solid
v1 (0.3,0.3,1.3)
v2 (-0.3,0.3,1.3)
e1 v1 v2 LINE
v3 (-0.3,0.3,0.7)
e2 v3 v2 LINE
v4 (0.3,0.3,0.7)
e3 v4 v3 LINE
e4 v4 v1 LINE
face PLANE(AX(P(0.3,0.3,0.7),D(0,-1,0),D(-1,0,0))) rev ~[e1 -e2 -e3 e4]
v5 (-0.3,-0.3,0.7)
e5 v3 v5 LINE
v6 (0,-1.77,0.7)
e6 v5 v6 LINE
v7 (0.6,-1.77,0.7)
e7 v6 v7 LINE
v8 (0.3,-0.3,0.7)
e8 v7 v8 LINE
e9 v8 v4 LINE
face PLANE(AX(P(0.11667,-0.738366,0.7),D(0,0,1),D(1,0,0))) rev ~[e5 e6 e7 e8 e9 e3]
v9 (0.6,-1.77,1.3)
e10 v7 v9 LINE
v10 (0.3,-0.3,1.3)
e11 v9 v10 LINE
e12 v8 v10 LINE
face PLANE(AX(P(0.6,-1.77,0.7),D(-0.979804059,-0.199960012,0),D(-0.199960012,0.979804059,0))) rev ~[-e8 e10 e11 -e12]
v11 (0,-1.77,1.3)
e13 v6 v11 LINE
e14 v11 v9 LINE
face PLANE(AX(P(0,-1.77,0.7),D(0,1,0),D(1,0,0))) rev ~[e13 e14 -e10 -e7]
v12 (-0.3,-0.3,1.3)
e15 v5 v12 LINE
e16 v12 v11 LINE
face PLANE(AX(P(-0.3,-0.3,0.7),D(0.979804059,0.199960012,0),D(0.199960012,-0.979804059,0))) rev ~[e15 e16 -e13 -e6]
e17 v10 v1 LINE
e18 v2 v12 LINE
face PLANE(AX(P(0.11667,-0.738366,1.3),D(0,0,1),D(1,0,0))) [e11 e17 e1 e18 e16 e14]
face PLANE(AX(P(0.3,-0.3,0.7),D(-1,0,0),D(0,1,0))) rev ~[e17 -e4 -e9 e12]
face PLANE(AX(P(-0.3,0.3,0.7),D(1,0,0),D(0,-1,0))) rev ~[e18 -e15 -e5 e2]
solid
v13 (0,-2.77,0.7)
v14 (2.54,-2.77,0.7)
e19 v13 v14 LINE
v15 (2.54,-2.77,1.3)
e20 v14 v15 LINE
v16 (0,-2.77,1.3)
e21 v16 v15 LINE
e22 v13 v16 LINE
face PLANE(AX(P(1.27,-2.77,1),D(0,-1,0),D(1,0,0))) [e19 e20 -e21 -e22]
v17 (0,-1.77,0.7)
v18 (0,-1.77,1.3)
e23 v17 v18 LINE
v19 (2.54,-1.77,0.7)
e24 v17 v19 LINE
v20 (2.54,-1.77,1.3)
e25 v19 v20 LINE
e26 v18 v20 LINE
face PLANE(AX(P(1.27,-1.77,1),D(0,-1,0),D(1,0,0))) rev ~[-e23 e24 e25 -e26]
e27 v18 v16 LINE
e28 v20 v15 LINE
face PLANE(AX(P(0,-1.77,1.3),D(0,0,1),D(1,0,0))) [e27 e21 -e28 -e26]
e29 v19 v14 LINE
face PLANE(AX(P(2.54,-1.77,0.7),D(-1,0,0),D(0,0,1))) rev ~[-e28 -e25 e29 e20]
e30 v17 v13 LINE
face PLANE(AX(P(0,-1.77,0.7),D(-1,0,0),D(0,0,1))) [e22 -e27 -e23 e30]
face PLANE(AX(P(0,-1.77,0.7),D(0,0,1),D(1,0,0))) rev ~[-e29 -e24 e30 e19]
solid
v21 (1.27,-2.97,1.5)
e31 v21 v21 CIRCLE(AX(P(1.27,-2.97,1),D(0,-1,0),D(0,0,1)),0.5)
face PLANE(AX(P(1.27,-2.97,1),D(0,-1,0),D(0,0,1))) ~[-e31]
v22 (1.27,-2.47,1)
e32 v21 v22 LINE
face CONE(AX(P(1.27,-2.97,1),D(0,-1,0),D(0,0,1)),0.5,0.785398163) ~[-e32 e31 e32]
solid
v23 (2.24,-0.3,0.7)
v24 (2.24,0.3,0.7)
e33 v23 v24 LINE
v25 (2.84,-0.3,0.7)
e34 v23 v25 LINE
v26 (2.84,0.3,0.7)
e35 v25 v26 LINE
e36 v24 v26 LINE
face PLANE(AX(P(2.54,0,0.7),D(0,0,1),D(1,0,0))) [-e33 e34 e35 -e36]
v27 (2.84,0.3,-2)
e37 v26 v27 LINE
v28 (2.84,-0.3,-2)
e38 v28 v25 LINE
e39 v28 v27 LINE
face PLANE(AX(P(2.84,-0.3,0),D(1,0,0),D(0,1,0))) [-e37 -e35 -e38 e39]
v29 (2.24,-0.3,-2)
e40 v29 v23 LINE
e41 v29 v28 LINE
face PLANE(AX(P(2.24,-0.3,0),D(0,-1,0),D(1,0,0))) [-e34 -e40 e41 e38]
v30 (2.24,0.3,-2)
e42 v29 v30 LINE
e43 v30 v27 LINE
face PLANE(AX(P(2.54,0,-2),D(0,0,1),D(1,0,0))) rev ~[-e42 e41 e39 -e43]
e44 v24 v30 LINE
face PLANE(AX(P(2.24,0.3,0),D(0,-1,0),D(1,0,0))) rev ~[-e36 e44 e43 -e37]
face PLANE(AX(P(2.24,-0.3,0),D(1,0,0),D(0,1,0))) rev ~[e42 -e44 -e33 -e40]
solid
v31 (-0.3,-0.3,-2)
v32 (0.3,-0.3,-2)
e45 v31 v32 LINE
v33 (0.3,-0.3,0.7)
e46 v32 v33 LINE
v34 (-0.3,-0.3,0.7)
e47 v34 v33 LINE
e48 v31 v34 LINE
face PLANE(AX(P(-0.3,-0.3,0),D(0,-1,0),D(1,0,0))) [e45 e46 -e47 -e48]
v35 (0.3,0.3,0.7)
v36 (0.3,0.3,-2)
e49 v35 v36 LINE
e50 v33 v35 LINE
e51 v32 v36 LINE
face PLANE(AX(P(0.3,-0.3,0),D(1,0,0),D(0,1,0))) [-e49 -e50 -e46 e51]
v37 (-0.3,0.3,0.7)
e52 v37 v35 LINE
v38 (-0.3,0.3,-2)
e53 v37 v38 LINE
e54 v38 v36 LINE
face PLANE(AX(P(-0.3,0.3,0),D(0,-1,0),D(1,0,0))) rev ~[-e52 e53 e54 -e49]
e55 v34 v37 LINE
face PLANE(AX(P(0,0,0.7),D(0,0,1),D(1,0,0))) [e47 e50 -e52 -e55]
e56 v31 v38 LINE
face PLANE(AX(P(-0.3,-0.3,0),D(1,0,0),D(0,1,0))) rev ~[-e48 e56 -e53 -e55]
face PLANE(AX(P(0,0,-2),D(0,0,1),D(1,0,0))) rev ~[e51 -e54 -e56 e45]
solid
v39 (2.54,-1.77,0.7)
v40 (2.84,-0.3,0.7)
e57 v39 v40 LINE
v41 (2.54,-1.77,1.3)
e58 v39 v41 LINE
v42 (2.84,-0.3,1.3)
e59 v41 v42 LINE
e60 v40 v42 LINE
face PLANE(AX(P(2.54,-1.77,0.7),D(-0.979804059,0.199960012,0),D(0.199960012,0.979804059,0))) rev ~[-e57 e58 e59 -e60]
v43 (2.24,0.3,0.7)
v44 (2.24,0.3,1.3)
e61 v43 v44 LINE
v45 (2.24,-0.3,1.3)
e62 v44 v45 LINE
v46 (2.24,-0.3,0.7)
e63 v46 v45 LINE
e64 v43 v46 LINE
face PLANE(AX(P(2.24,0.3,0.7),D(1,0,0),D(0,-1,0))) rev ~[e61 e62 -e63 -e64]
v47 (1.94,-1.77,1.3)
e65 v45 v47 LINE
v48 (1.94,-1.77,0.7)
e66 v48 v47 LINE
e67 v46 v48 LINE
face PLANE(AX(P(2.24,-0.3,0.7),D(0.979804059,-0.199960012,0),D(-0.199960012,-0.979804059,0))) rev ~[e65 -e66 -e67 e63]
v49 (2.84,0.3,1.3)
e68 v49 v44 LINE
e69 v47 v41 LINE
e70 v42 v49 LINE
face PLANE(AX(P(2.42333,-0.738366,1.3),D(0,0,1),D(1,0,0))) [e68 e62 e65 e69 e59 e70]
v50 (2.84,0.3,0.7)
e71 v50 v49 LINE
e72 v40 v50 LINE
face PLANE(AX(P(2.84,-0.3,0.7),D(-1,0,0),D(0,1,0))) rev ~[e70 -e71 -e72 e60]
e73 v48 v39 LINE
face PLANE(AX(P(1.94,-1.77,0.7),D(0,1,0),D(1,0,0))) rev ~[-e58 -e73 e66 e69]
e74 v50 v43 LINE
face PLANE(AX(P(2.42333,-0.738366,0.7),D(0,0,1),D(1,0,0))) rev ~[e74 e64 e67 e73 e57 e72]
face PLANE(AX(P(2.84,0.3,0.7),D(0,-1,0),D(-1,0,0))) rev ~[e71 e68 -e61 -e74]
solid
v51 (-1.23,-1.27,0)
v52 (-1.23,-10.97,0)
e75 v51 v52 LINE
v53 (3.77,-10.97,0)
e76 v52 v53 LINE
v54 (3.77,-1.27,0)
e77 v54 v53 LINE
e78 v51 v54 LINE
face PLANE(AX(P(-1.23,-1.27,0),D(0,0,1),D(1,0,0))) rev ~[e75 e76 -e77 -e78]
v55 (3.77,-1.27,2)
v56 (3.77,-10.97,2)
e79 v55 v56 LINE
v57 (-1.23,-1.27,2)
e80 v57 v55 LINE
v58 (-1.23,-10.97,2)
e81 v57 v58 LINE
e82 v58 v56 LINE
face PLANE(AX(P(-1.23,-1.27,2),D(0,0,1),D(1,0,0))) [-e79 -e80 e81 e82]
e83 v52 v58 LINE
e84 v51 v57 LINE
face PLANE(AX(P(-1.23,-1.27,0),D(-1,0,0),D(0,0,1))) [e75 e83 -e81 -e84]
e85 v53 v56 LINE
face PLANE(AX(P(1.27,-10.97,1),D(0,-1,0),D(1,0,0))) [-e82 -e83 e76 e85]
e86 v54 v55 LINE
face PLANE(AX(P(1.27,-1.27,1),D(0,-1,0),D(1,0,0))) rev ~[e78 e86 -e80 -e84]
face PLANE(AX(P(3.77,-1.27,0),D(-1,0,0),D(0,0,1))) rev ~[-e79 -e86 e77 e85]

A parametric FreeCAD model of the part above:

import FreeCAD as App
import Part
import Sketcher

V = App.Vector

doc = App.newDocument("Part")
body = doc.addObject("PartDesign::Body", "Body")
body.AllowCompound = True

# Sketch on XY plane
sketch1 = doc.addObject("Sketcher::SketchObject", "Sketch")
body.addObject(sketch1)
sketch1.AttachmentSupport = (doc.XY_Plane, [""])
sketch1.MapMode = "FlatFace"
sketch1.addGeometry([
    Part.LineSegment(V(-0.3, 0.3, 0), V(-0.3, -0.3, 0)),  # 0
    Part.LineSegment(V(-0.3, -0.3, 0), V(0.3, -0.3, 0)),  # 1
    Part.LineSegment(V(0.3, -0.3, 0), V(0.3, 0.3, 0)),  # 2
    Part.LineSegment(V(0.3, 0.3, 0), V(-0.3, 0.3, 0)),  # 3
    Part.LineSegment(V(2.2, 0.3, 0), V(2.2, -0.3, 0)),  # 4
    Part.LineSegment(V(2.2, -0.3, 0), V(2.8, -0.3, 0)),  # 5
    Part.LineSegment(V(2.8, -0.3, 0), V(2.8, 0.3, 0)),  # 6
    Part.LineSegment(V(2.8, 0.3, 0), V(2.2, 0.3, 0)),  # 7
], False)
sketch1.addConstraint([
    Sketcher.Constraint("Coincident", 0, 2, 1, 1),
    Sketcher.Constraint("Coincident", 1, 2, 2, 1),
    Sketcher.Constraint("Coincident", 2, 2, 3, 1),
    Sketcher.Constraint("Coincident", 3, 2, 0, 1),
    Sketcher.Constraint("Coincident", 4, 2, 5, 1),
    Sketcher.Constraint("Coincident", 5, 2, 6, 1),
    Sketcher.Constraint("Coincident", 6, 2, 7, 1),
    Sketcher.Constraint("Coincident", 7, 2, 4, 1),
    Sketcher.Constraint("Vertical", 0),
    Sketcher.Constraint("Horizontal", 1),
    Sketcher.Constraint("Vertical", 2),
    Sketcher.Constraint("Horizontal", 3),
    Sketcher.Constraint("Vertical", 4),
    Sketcher.Constraint("Horizontal", 5),
    Sketcher.Constraint("Vertical", 6),
    Sketcher.Constraint("Horizontal", 7),
    Sketcher.Constraint("Symmetric", 0, 2, 2, 2, -1, 1),
    Sketcher.Constraint("Horizontal", 1, 2, 4, 2),
    Sketcher.Constraint("Horizontal", 3, 2, 6, 2),
    Sketcher.Constraint("Equal", 3, 5),
    Sketcher.Constraint("Equal", 7, 0),
    Sketcher.Constraint("DistanceX", 1, 1, 1, 2, 0.6),
    Sketcher.Constraint("DistanceX", -1, 1, 4, 2, 2.24),
])
pad1 = doc.addObject("PartDesign::Pad", "Pad")
body.addObject(pad1)
pad1.Profile = sketch1
pad1.Type = "TwoLengths"
pad1.Length = 0.7
pad1.Length2 = 2
body2 = doc.addObject("PartDesign::Body", "Body001")
body2.AllowCompound = True

# Sketch on XY plane
sketch2 = doc.addObject("Sketcher::SketchObject", "Sketch001")
body2.addObject(sketch2)
sketch2.AttachmentSupport = (doc.getObject("XY_Plane001"), [""])
sketch2.MapMode = "FlatFace"
sketch2.AttachmentOffset = App.Placement(V(0, 0, 0.7), App.Rotation())
sketch2.addGeometry([
    Part.LineSegment(V(0.3, 0.3, 0), V(-0.3, 0.3, 0)),  # 0
    Part.LineSegment(V(-0.3, 0.3, 0), V(-0.3, -0.3, 0)),  # 1
    Part.LineSegment(V(-0.3, -0.3, 0), V(0, -1.8, 0)),  # 2
    Part.LineSegment(V(0, -1.8, 0), V(0.6, -1.8, 0)),  # 3
    Part.LineSegment(V(0.6, -1.8, 0), V(0.3, -0.3, 0)),  # 4
    Part.LineSegment(V(0.3, -0.3, 0), V(0.3, 0.3, 0)),  # 5
    Part.LineSegment(V(2.8, 0.3, 0), V(2.2, 0.3, 0)),  # 6
    Part.LineSegment(V(2.2, 0.3, 0), V(2.2, -0.3, 0)),  # 7
    Part.LineSegment(V(2.2, -0.3, 0), V(1.9, -1.8, 0)),  # 8
    Part.LineSegment(V(1.9, -1.8, 0), V(2.5, -1.8, 0)),  # 9
    Part.LineSegment(V(2.5, -1.8, 0), V(2.8, -0.3, 0)),  # 10
    Part.LineSegment(V(2.8, -0.3, 0), V(2.8, 0.3, 0)),  # 11
], False)
sketch2.addConstraint([
    Sketcher.Constraint("Coincident", 0, 2, 1, 1),
    Sketcher.Constraint("Coincident", 1, 2, 2, 1),
    Sketcher.Constraint("Coincident", 2, 2, 3, 1),
    Sketcher.Constraint("Coincident", 3, 2, 4, 1),
    Sketcher.Constraint("Coincident", 4, 2, 5, 1),
    Sketcher.Constraint("Coincident", 5, 2, 0, 1),
    Sketcher.Constraint("Coincident", 6, 2, 7, 1),
    Sketcher.Constraint("Coincident", 7, 2, 8, 1),
    Sketcher.Constraint("Coincident", 8, 2, 9, 1),
    Sketcher.Constraint("Coincident", 9, 2, 10, 1),
    Sketcher.Constraint("Coincident", 10, 2, 11, 1),
    Sketcher.Constraint("Coincident", 11, 2, 6, 1),
    Sketcher.Constraint("Horizontal", 0),
    Sketcher.Constraint("Vertical", 1),
    Sketcher.Constraint("Horizontal", 3),
    Sketcher.Constraint("Vertical", 5),
    Sketcher.Constraint("Horizontal", 6),
    Sketcher.Constraint("Vertical", 7),
    Sketcher.Constraint("Horizontal", 9),
    Sketcher.Constraint("Vertical", 11),
    Sketcher.Constraint("Symmetric", 0, 2, 4, 2, -1, 1),
    Sketcher.Constraint("PointOnObject", 2, 2, -2),
    Sketcher.Constraint("Parallel", 2, 4),
    Sketcher.Constraint("Parallel", 8, 10),
    Sketcher.Constraint("Horizontal", 1, 2, 4, 2),
    Sketcher.Constraint("Horizontal", 5, 2, 6, 2),
    Sketcher.Constraint("Horizontal", 4, 2, 7, 2),
    Sketcher.Constraint("Horizontal", 3, 2, 8, 2),
    Sketcher.Constraint("Horizontal", 7, 2, 10, 2),
    Sketcher.Constraint("Equal", 3, 6),
    Sketcher.Constraint("Equal", 9, 1),
    Sketcher.Constraint("Equal", 4, 8),
    Sketcher.Constraint("DistanceX", 0, 2, 0, 1, 0.6),
    Sketcher.Constraint("DistanceY", 2, 2, -1, 1, 1.77),
    Sketcher.Constraint("DistanceX", -1, 1, 6, 2, 2.24),
])
pad2 = doc.addObject("PartDesign::Pad", "Pad001")
body2.addObject(pad2)
pad2.Profile = sketch2
pad2.Length = 0.6
body3 = doc.addObject("PartDesign::Body", "Body002")

# Sketch on XZ plane
sketch3 = doc.addObject("Sketcher::SketchObject", "Sketch002")
body3.addObject(sketch3)
sketch3.AttachmentSupport = (doc.getObject("XZ_Plane002"), [""])
sketch3.MapMode = "FlatFace"
sketch3.AttachmentOffset = App.Placement(V(0, 0, 1.77), App.Rotation())
sketch3.addGeometry([
    Part.LineSegment(V(0, 1.3, 0), V(0, 0.7, 0)),
    Part.LineSegment(V(0, 0.7, 0), V(2.5, 0.7, 0)),
    Part.LineSegment(V(2.5, 0.7, 0), V(2.5, 1.3, 0)),
    Part.LineSegment(V(2.5, 1.3, 0), V(0, 1.3, 0)),
], False)
sketch3.addConstraint([
    Sketcher.Constraint("Coincident", 0, 2, 1, 1),
    Sketcher.Constraint("Coincident", 1, 2, 2, 1),
    Sketcher.Constraint("Coincident", 2, 2, 3, 1),
    Sketcher.Constraint("Coincident", 3, 2, 0, 1),
    Sketcher.Constraint("Vertical", 0),
    Sketcher.Constraint("Horizontal", 1),
    Sketcher.Constraint("Vertical", 2),
    Sketcher.Constraint("Horizontal", 3),
    Sketcher.Constraint("PointOnObject", 0, 2, -2),
    Sketcher.Constraint("DistanceY", 0, 2, 0, 1, 0.6),
    Sketcher.Constraint("DistanceX", 1, 1, 1, 2, 2.54),
    Sketcher.Constraint("DistanceY", -1, 1, 0, 2, 0.7),
])
pad3 = doc.addObject("PartDesign::Pad", "Pad002")
body3.addObject(pad3)
pad3.Profile = sketch3
pad3.Length = 1
body4 = doc.addObject("PartDesign::Body", "Body003")

# Sketch on XZ plane
sketch4 = doc.addObject("Sketcher::SketchObject", "Sketch003")
body4.addObject(sketch4)
sketch4.AttachmentSupport = (doc.getObject("XZ_Plane003"), [""])
sketch4.MapMode = "FlatFace"
sketch4.AttachmentOffset = App.Placement(V(0, 0, 1.27), App.Rotation())
sketch4.addGeometry([
    Part.LineSegment(V(-1.2, 2, 0), V(-1.2, 0, 0)),
    Part.LineSegment(V(-1.2, 0, 0), V(3.8, 0, 0)),
    Part.LineSegment(V(3.8, 0, 0), V(3.8, 2, 0)),
    Part.LineSegment(V(3.8, 2, 0), V(-1.2, 2, 0)),
], False)
sketch4.addConstraint([
    Sketcher.Constraint("Coincident", 0, 2, 1, 1),
    Sketcher.Constraint("Coincident", 1, 2, 2, 1),
    Sketcher.Constraint("Coincident", 2, 2, 3, 1),
    Sketcher.Constraint("Coincident", 3, 2, 0, 1),
    Sketcher.Constraint("Vertical", 0),
    Sketcher.Constraint("Horizontal", 1),
    Sketcher.Constraint("Vertical", 2),
    Sketcher.Constraint("Horizontal", 3),
    Sketcher.Constraint("PointOnObject", 0, 2, -1),
    Sketcher.Constraint("DistanceX", 1, 1, 1, 2, 5.0),
    Sketcher.Constraint("DistanceY", 0, 2, 0, 1, 2.0),
    Sketcher.Constraint("DistanceX", 0, 2, -1, 1, 1.23),
])
pad4 = doc.addObject("PartDesign::Pad", "Pad003")
body4.addObject(pad4)
pad4.Profile = sketch4
pad4.Length = 9.7
body5 = doc.addObject("PartDesign::Body", "Body004")

# Sketch on YZ plane
sketch5 = doc.addObject("Sketcher::SketchObject", "Sketch004")
body5.addObject(sketch5)
sketch5.AttachmentSupport = (doc.getObject("YZ_Plane004"), [""])
sketch5.MapMode = "FlatFace"
sketch5.AttachmentOffset = App.Placement(V(0, 0, 1.27), App.Rotation())
sketch5.addGeometry([
    Part.LineSegment(V(-3, 1, 0), V(-2.5, 1, 0)),
    Part.LineSegment(V(-2.5, 1, 0), V(-3, 1.5, 0)),
    Part.LineSegment(V(-3, 1.5, 0), V(-3, 1, 0)),
], False)
sketch5.addGeometry(Part.LineSegment(V(-2.5, 1, 0), V(-3, 1, 0)), True)  # axis
sketch5.addConstraint([
    Sketcher.Constraint("Coincident", 0, 2, 1, 1),
    Sketcher.Constraint("Coincident", 1, 2, 2, 1),
    Sketcher.Constraint("Coincident", 2, 2, 0, 1),
    Sketcher.Constraint("Horizontal", 0),
    Sketcher.Constraint("Vertical", 2),
    Sketcher.Constraint("Horizontal", 3),
    Sketcher.Constraint("Coincident", 3, 1, 0, 2),
    Sketcher.Constraint("Vertical", 1, 2, 3, 2),
    Sketcher.Constraint("Equal", 3, 2),
    Sketcher.Constraint("DistanceX", 0, 1, 0, 2, 0.5),
    Sketcher.Constraint("DistanceY", -1, 1, 0, 2, 1.0),
    Sketcher.Constraint("DistanceX", 0, 2, -1, 1, 2.47),
])
revolution = doc.addObject("PartDesign::Revolution", "Revolution")
body5.addObject(revolution)
revolution.Profile = sketch5
revolution.ReferenceAxis = (sketch5, ["Axis0"])
revolution.Angle = 360

doc.recompute()
